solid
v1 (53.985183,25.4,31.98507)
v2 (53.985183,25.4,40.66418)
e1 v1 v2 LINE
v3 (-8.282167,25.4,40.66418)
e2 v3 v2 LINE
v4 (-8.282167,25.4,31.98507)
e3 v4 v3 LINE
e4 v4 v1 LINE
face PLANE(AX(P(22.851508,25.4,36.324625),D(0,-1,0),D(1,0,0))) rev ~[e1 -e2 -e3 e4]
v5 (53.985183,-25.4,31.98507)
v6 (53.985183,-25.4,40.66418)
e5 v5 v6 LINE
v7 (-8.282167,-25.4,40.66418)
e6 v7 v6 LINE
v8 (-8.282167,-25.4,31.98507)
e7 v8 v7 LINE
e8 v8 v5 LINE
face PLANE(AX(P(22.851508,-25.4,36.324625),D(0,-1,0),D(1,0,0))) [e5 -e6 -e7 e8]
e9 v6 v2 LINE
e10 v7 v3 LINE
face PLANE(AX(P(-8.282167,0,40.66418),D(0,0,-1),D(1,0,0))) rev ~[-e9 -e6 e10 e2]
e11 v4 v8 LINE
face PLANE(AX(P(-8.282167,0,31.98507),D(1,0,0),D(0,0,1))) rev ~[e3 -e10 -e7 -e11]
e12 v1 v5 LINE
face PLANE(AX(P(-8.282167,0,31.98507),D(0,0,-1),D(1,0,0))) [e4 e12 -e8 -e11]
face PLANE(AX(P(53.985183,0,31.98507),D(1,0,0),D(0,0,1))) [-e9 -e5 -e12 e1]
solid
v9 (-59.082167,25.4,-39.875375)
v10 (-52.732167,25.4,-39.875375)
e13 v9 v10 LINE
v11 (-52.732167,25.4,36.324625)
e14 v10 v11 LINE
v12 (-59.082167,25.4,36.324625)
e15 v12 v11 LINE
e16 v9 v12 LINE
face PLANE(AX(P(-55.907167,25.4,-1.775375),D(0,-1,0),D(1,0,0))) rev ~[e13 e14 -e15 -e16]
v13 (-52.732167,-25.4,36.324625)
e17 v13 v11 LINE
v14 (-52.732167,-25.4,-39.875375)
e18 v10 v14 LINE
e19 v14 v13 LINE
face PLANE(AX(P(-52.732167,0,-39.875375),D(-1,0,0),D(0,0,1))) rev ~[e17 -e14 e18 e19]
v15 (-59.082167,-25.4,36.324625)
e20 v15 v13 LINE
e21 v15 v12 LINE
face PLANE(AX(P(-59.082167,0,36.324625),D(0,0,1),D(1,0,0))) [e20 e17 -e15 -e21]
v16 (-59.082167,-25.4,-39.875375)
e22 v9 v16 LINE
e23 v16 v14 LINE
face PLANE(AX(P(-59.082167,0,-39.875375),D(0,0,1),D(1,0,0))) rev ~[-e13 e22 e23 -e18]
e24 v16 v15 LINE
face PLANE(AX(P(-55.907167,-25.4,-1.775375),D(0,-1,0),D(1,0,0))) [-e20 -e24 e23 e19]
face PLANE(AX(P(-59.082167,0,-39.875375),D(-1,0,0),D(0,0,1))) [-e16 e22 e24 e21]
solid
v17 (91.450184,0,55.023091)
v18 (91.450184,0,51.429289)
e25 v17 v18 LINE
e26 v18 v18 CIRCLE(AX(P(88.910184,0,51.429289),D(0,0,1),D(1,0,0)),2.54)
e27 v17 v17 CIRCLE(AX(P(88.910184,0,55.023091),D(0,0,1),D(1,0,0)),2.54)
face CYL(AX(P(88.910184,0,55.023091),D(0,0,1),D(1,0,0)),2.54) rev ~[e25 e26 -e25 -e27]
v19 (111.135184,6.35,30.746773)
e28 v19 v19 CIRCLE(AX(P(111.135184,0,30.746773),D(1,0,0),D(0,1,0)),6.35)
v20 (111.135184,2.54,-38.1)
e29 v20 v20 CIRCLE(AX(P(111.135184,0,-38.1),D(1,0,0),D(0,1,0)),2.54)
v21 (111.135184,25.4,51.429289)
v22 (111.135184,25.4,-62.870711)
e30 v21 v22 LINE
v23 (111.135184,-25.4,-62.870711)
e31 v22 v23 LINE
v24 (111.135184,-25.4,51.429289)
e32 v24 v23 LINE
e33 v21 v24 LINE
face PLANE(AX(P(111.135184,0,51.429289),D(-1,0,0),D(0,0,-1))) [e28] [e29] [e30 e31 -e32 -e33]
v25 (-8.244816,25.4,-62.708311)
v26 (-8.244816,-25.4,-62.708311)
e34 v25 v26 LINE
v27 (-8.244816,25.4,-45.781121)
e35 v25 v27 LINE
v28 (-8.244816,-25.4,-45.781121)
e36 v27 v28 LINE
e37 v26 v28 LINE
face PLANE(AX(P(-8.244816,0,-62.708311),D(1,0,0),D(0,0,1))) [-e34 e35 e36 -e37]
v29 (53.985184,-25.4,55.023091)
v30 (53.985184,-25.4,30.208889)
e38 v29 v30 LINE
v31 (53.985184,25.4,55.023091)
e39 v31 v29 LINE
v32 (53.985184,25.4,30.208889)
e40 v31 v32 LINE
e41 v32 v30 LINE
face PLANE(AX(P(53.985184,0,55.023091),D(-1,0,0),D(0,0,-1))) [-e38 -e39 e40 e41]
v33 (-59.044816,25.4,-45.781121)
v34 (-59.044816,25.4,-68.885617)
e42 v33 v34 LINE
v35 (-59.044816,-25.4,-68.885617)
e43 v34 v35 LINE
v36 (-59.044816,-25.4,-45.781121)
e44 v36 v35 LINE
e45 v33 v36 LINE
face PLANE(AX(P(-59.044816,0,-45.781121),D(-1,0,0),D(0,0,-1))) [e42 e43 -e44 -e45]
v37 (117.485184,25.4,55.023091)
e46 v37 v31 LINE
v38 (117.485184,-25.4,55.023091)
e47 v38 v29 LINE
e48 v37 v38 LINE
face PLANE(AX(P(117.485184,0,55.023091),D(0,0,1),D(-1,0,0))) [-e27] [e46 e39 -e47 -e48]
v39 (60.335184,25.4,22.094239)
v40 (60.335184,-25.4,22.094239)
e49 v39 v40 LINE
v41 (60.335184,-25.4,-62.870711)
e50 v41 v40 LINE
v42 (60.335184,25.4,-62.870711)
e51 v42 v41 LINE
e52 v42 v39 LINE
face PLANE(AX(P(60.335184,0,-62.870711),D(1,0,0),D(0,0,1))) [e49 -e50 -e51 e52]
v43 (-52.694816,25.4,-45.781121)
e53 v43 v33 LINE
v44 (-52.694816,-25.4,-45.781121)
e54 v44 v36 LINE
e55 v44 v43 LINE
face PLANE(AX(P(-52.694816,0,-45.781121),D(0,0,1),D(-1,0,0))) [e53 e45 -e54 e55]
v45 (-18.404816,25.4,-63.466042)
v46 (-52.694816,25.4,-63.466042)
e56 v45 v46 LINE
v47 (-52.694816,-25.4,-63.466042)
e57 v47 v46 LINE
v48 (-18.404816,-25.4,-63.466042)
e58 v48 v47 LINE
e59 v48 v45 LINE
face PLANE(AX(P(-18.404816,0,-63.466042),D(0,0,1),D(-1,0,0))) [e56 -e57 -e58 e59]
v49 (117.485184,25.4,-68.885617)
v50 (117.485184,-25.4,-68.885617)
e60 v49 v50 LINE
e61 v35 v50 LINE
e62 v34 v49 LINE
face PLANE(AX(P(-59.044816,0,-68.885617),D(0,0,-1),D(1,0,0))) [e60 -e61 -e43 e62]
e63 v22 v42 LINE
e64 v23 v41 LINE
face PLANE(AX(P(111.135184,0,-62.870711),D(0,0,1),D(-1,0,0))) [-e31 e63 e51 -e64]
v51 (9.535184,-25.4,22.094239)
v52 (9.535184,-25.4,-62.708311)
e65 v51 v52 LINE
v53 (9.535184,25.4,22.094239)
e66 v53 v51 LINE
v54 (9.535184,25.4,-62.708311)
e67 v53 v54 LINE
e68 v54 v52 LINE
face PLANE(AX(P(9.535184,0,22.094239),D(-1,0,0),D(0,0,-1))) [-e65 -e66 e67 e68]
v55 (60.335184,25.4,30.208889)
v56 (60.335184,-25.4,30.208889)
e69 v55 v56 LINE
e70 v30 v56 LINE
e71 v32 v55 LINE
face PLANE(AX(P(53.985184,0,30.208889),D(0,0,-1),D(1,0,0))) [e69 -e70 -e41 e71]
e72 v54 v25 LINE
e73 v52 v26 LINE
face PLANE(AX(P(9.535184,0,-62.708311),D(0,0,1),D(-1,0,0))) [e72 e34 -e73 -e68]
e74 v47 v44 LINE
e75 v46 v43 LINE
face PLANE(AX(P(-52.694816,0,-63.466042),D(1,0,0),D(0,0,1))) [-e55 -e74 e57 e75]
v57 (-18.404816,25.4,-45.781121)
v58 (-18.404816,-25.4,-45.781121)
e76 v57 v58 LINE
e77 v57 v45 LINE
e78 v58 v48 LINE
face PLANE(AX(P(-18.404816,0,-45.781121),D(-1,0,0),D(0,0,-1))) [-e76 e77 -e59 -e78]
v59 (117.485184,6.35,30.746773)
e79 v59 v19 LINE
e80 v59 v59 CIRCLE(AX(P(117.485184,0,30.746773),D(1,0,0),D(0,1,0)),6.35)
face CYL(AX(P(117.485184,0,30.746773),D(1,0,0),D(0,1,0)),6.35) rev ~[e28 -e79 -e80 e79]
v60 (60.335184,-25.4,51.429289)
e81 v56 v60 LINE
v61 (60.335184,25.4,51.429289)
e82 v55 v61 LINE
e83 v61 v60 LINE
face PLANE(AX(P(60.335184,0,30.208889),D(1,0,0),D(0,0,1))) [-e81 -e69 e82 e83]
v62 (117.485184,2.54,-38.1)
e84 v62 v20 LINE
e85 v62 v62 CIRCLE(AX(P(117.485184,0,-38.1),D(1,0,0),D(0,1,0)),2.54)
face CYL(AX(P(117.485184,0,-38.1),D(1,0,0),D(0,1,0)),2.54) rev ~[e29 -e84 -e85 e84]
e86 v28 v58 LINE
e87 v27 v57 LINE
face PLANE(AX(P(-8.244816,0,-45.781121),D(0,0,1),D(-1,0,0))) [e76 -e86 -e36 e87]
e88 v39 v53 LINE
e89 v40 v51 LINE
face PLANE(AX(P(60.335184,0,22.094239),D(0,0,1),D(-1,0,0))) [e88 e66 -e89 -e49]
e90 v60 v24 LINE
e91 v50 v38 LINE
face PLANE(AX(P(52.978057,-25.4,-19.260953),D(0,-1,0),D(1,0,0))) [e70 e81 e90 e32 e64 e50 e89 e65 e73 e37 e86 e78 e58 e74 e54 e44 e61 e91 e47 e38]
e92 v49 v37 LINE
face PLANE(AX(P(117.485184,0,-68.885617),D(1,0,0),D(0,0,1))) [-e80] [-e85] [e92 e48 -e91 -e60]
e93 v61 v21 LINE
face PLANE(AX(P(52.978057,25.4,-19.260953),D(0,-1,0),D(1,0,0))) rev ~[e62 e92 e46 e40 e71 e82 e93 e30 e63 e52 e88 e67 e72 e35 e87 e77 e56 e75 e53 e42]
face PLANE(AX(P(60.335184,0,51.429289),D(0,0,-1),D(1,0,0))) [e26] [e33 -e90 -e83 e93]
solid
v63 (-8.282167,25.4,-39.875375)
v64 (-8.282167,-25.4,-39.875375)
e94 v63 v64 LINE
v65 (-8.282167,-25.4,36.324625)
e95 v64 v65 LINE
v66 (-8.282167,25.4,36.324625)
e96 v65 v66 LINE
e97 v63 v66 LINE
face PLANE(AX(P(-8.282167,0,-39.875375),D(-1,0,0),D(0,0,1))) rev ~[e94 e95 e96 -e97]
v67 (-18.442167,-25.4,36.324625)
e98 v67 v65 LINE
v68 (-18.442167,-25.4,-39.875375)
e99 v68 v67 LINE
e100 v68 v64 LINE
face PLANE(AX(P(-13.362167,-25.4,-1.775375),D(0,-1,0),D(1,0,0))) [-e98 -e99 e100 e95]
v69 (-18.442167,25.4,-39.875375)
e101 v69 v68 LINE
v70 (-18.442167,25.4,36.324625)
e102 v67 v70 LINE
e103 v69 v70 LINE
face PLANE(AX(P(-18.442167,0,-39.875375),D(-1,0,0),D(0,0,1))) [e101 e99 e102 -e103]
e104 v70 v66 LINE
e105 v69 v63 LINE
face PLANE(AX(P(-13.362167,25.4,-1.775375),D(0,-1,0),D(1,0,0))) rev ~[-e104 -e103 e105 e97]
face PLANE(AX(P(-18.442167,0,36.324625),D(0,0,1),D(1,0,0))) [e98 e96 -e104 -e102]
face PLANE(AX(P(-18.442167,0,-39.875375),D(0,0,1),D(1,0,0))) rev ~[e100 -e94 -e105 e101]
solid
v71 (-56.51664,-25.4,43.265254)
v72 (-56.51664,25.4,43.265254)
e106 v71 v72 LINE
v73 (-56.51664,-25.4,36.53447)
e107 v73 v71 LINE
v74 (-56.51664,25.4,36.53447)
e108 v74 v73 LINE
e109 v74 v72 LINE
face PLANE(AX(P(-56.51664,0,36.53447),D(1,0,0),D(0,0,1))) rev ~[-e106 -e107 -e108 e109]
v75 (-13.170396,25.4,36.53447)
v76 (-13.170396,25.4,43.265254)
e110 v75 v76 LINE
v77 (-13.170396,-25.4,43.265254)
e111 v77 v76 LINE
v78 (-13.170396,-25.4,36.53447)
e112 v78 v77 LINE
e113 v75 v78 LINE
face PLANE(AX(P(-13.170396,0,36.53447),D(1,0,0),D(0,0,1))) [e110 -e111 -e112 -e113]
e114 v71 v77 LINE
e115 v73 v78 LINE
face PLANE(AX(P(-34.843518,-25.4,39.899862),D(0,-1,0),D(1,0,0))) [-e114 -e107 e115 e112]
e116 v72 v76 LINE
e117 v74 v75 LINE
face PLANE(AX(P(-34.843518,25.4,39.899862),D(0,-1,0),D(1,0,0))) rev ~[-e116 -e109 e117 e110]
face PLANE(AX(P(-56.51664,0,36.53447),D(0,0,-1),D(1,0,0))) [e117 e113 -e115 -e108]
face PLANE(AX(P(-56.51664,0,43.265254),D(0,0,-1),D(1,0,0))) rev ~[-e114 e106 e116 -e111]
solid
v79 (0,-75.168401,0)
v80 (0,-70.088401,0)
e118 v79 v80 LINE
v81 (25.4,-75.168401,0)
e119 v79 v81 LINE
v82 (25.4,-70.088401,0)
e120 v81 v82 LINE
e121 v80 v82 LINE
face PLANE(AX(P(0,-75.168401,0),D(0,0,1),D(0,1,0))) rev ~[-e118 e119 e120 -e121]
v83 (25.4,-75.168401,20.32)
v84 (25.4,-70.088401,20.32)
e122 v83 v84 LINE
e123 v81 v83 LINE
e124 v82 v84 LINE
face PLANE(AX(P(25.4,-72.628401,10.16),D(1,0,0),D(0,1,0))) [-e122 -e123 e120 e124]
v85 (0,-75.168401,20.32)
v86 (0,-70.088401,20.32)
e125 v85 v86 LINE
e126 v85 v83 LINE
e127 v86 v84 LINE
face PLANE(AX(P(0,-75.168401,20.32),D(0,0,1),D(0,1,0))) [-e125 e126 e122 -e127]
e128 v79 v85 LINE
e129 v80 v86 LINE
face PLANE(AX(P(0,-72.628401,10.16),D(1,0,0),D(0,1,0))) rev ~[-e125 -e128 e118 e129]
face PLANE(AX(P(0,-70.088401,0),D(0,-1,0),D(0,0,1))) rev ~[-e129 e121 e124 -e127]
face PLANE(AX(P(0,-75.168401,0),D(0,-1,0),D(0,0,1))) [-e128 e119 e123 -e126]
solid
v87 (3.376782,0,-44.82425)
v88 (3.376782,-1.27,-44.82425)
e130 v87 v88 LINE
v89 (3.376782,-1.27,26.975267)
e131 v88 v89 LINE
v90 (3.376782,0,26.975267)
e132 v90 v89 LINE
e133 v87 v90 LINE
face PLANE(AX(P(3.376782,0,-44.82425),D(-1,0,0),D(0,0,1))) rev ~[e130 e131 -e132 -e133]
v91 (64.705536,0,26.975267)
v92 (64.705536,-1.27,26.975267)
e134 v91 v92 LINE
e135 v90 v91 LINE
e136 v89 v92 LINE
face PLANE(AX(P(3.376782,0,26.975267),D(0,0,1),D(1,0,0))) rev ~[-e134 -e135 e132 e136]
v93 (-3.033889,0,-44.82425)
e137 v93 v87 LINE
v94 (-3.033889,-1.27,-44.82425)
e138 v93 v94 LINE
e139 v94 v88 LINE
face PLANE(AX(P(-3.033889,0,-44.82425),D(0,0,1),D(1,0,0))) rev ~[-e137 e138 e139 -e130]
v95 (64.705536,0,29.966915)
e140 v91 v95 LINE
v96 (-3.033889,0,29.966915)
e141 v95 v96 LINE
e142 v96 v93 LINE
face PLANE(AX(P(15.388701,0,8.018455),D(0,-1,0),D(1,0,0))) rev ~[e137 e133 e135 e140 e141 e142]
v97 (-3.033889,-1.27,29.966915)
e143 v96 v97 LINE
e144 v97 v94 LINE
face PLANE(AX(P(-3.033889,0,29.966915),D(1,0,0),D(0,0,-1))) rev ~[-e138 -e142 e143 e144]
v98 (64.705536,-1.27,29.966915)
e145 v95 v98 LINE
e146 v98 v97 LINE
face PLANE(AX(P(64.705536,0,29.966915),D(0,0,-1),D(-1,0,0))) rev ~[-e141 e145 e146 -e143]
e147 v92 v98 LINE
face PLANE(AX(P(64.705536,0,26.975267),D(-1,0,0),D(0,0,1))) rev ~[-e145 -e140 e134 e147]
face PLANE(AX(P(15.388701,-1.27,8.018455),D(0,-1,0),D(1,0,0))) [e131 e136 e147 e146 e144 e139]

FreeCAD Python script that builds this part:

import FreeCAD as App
import Part
import Sketcher

V = App.Vector
Q = App.Units.Quantity


def add_polygon(sketch, points):
    """Adds a closed chain of lines whose ends are joined by coincident constraints."""
    first, n = sketch.GeometryCount, len(points)
    for a, b in zip(points, points[1:] + points[:1]):
        sketch.addGeometry(Part.LineSegment(App.Vector(*a, 0), App.Vector(*b, 0)), False)
    for i in range(n):
        sketch.addConstraint(Sketcher.Constraint("Coincident", first + i, 2, first + (i + 1) % n, 1))

doc = App.newDocument("Part")
body = doc.addObject("PartDesign::Body", "Body")
body.AllowCompound = True

# Sketch on XZ plane
sketch1 = doc.addObject("Sketcher::SketchObject", "Sketch")
body.addObject(sketch1)
sketch1.AttachmentSupport = (doc.XZ_Plane, [""])
sketch1.MapMode = "FlatFace"
add_polygon(sketch1, [(-59.082167, 36.324625), (-59.082167, -39.875375), (-52.732167, -39.875375), (-52.732167, 36.324625)])  # lines 0-3
add_polygon(sketch1, [(-18.442167, 36.324625), (-18.442167, -39.875375), (-8.282167, -39.875375), (-8.282167, 36.324625)])  # lines 4-7
add_polygon(sketch1, [(-52.694816, -45.781121), (-59.044816, -45.781121), (-59.044816, -68.885617), (117.485184, -68.885617), (117.485184, 55.023091), (53.985184, 55.023091), (53.985184, 30.208889), (60.335184, 30.208889), (60.335184, 51.429289), (111.135184, 51.429289), (111.135184, -62.870711), (60.335184, -62.870711), (60.335184, 22.094239), (9.535184, 22.094239), (9.535184, -62.708311), (-8.244816, -62.708311), (-8.244816, -45.781121), (-18.404816, -45.781121), (-18.404816, -63.466042), (-52.694816, -63.466042)])  # lines 8-27
sketch1.addConstraint(Sketcher.Constraint("Vertical", 0))
sketch1.addConstraint(Sketcher.Constraint("Horizontal", 1))
sketch1.addConstraint(Sketcher.Constraint("Vertical", 2))
sketch1.addConstraint(Sketcher.Constraint("Horizontal", 3))
sketch1.addConstraint(Sketcher.Constraint("Vertical", 4))
sketch1.addConstraint(Sketcher.Constraint("Horizontal", 5))
sketch1.addConstraint(Sketcher.Constraint("Vertical", 6))
sketch1.addConstraint(Sketcher.Constraint("Horizontal", 7))
sketch1.addConstraint(Sketcher.Constraint("Horizontal", 8))
sketch1.addConstraint(Sketcher.Constraint("Vertical", 9))
sketch1.addConstraint(Sketcher.Constraint("Horizontal", 10))
sketch1.addConstraint(Sketcher.Constraint("Vertical", 11))
sketch1.addConstraint(Sketcher.Constraint("Horizontal", 12))
sketch1.addConstraint(Sketcher.Constraint("Vertical", 13))
sketch1.addConstraint(Sketcher.Constraint("Horizontal", 14))
sketch1.addConstraint(Sketcher.Constraint("Vertical", 15))
sketch1.addConstraint(Sketcher.Constraint("Horizontal", 16))
sketch1.addConstraint(Sketcher.Constraint("Vertical", 17))
sketch1.addConstraint(Sketcher.Constraint("Horizontal", 18))
sketch1.addConstraint(Sketcher.Constraint("Vertical", 19))
sketch1.addConstraint(Sketcher.Constraint("Horizontal", 20))
sketch1.addConstraint(Sketcher.Constraint("Vertical", 21))
sketch1.addConstraint(Sketcher.Constraint("Horizontal", 22))
sketch1.addConstraint(Sketcher.Constraint("Vertical", 23))
sketch1.addConstraint(Sketcher.Constraint("Horizontal", 24))
sketch1.addConstraint(Sketcher.Constraint("Vertical", 25))
sketch1.addConstraint(Sketcher.Constraint("Horizontal", 26))
sketch1.addConstraint(Sketcher.Constraint("Vertical", 27))
sketch1.addConstraint(Sketcher.Constraint("Horizontal", 1, 2, 4, 2))
sketch1.addConstraint(Sketcher.Constraint("Horizontal", 3, 2, 6, 2))
sketch1.addConstraint(Sketcher.Constraint("Horizontal", 8, 2, 23, 2))
sketch1.addConstraint(Sketcher.Constraint("Vertical", 15, 2, 18, 2))
sketch1.addConstraint(Sketcher.Constraint("Equal", 3, 8))
sketch1.addConstraint(Sketcher.Constraint("Equal", 8, 14))
sketch1.addConstraint(Sketcher.Constraint("Equal", 18, 20))
sketch1.addConstraint(Sketcher.Constraint("Equal", 7, 24))
sketch1.addConstraint(Sketcher.Constraint("DistanceX", 16, 1, 16, 2, Q("2 in")))
sketch1.addConstraint(Sketcher.Constraint("DistanceY", 0, 2, 0, 1, Q("3 in")))
sketch1.addConstraint(Sketcher.Constraint("DistanceX", 5, 1, 5, 2, Q("0.4 in")))
sketch1.addConstraint(Sketcher.Constraint("DistanceX", 12, 2, 12, 1, Q("2.5 in")))
sketch1.addConstraint(Sketcher.Constraint("DistanceX", 22, 2, 22, 1, Q("0.7 in")))
sketch1.addConstraint(Sketcher.Constraint("DistanceY", 17, 2, 17, 1, Q("4.5 in")))
sketch1.addConstraint(Sketcher.Constraint("DistanceX", 0, 2, 5, 2, Q("2 in")))
sketch1.addConstraint(Sketcher.Constraint("DistanceX", 9, 2, 22, 2, Q("2 in")))
sketch1.addConstraint(Sketcher.Constraint("DistanceX", 1, 1, 1, 2, Q("0.25 in")))
sketch1.addConstraint(Sketcher.Constraint("DistanceY", 15, 1, 15, 2, Q("21.2204 mm")))
sketch1.addConstraint(Sketcher.Constraint("DistanceY", 19, 1, 19, 2, Q("84.96495 mm")))
sketch1.addConstraint(Sketcher.Constraint("DistanceY", 21, 2, 21, 1, Q("84.80255 mm")))
sketch1.addConstraint(Sketcher.Constraint("DistanceY", 23, 1, 23, 2, Q("16.92719 mm")))
sketch1.addConstraint(Sketcher.Constraint("DistanceY", 25, 2, 25, 1, Q("17.684921 mm")))
sketch1.addConstraint(Sketcher.Constraint("DistanceY", 17, 2, 11, 2, Q("117.893802 mm")))
sketch1.addConstraint(Sketcher.Constraint("DistanceY", 9, 2, 9, 1, Q("23.104496 mm")))
sketch1.addConstraint(Sketcher.Constraint("DistanceY", 8, 2, -1, 1, Q("45.781121 mm")))
sketch1.addConstraint(Sketcher.Constraint("DistanceX", 0, 2, 8, 2, Q("0.037351 mm")))
sketch1.addConstraint(Sketcher.Constraint("DistanceY", 9, 2, 0, 2, Q("29.010242 mm")))
sketch1.addConstraint(Sketcher.Constraint("DistanceX", 0, 2, -1, 1, Q("59.082167 mm")))
pad1 = doc.addObject("PartDesign::Pad", "Pad")
body.addObject(pad1)
pad1.Profile = sketch1
pad1.Length = Q("2 in")
pad1.Midplane = True

# Sketch on YZ plane
sketch2 = doc.addObject("Sketcher::SketchObject", "Sketch001")
body.addObject(sketch2)
sketch2.AttachmentSupport = (doc.YZ_Plane, [""])
sketch2.MapMode = "FlatFace"
sketch2.AttachmentOffset = App.Placement(V(0, 0, 117.485184), App.Rotation())
sketch2.addGeometry(Part.Circle(V(0, 30.746773, 0), V(0, 0, 1), 6.35), False)
sketch2.addConstraint(Sketcher.Constraint("PointOnObject", 0, 3, -2))
sketch2.addConstraint(Sketcher.Constraint("Diameter", 0, Q("0.5 in")))
sketch2.addConstraint(Sketcher.Constraint("DistanceY", -1, 1, 0, 3, Q("30.746773 mm")))
pocket1 = doc.addObject("PartDesign::Pocket", "Pocket")
body.addObject(pocket1)
pocket1.Profile = sketch2
pocket1.Length = Q("0.25 in")

# Sketch on YZ plane
sketch3 = doc.addObject("Sketcher::SketchObject", "Sketch002")
body.addObject(sketch3)
sketch3.AttachmentSupport = (doc.YZ_Plane, [""])
sketch3.MapMode = "FlatFace"
sketch3.AttachmentOffset = App.Placement(V(0, 0, 117.485184), App.Rotation())
sketch3.addGeometry(Part.Circle(V(0, -38.1, 0), V(0, 0, 1), 2.54), False)
sketch3.addConstraint(Sketcher.Constraint("PointOnObject", 0, 3, -2))
sketch3.addConstraint(Sketcher.Constraint("Diameter", 0, Q("0.2 in")))
sketch3.addConstraint(Sketcher.Constraint("DistanceY", 0, 3, -1, 1, Q("1.5 in")))
pocket2 = doc.addObject("PartDesign::Pocket", "Pocket001")
body.addObject(pocket2)
pocket2.Profile = sketch3
pocket2.Length = Q("0.25 in")

# Sketch on XY plane
sketch4 = doc.addObject("Sketcher::SketchObject", "Sketch003")
body.addObject(sketch4)
sketch4.AttachmentSupport = (doc.XY_Plane, [""])
sketch4.MapMode = "FlatFace"
sketch4.AttachmentOffset = App.Placement(V(0, 0, 55.023091), App.Rotation())
sketch4.addGeometry(Part.Circle(V(88.910184, 0, 0), V(0, 0, 1), 2.54), False)
sketch4.addConstraint(Sketcher.Constraint("PointOnObject", 0, 3, -1))
sketch4.addConstraint(Sketcher.Constraint("Diameter", 0, Q("0.2 in")))
sketch4.addConstraint(Sketcher.Constraint("DistanceX", -1, 1, 0, 3, Q("88.910184 mm")))
pocket3 = doc.addObject("PartDesign::Pocket", "Pocket002")
body.addObject(pocket3)
pocket3.Profile = sketch4
pocket3.Length = 3.8128
body2 = doc.addObject("PartDesign::Body", "Body001")

# Sketch on XZ plane
sketch5 = doc.addObject("Sketcher::SketchObject", "Sketch004")
body2.addObject(sketch5)
sketch5.AttachmentSupport = (doc.getObject("XZ_Plane001"), [""])
sketch5.MapMode = "FlatFace"
add_polygon(sketch5, [(-8.282167, 40.66418), (-8.282167, 31.98507), (53.985183, 31.98507), (53.985183, 40.66418)])  # lines 0-3
sketch5.addConstraint(Sketcher.Constraint("Vertical", 0))
sketch5.addConstraint(Sketcher.Constraint("Horizontal", 1))
sketch5.addConstraint(Sketcher.Constraint("Vertical", 2))
sketch5.addConstraint(Sketcher.Constraint("Horizontal", 3))
sketch5.addConstraint(Sketcher.Constraint("DistanceX", 1, 1, 1, 2, Q("62.267351 mm")))
sketch5.addConstraint(Sketcher.Constraint("DistanceY", 0, 2, 0, 1, Q("8.679109 mm")))
sketch5.addConstraint(Sketcher.Constraint("DistanceY", -1, 1, 0, 2, Q("31.98507 mm")))
sketch5.addConstraint(Sketcher.Constraint("DistanceX", 0, 2, -1, 1, Q("8.282167 mm")))
pad2 = doc.addObject("PartDesign::Pad", "Pad001")
body2.addObject(pad2)
pad2.Profile = sketch5
pad2.Length = Q("2 in")
pad2.Midplane = True
body3 = doc.addObject("PartDesign::Body", "Body002")

# Sketch on XZ plane
sketch6 = doc.addObject("Sketcher::SketchObject", "Sketch005")
body3.addObject(sketch6)
sketch6.AttachmentSupport = (doc.getObject("XZ_Plane002"), [""])
sketch6.MapMode = "FlatFace"
add_polygon(sketch6, [(-56.51664, 43.265254), (-56.51664, 36.53447), (-13.170396, 36.53447), (-13.170396, 43.265254)])  # lines 0-3
sketch6.addConstraint(Sketcher.Constraint("Vertical", 0))
sketch6.addConstraint(Sketcher.Constraint("Horizontal", 1))
sketch6.addConstraint(Sketcher.Constraint("Vertical", 2))
sketch6.addConstraint(Sketcher.Constraint("Horizontal", 3))
sketch6.addConstraint(Sketcher.Constraint("DistanceX", 1, 1, 1, 2, Q("43.346244 mm")))
sketch6.addConstraint(Sketcher.Constraint("DistanceY", 0, 2, 0, 1, Q("6.730783 mm")))
sketch6.addConstraint(Sketcher.Constraint("DistanceX", 0, 2, -1, 1, Q("56.51664 mm")))
sketch6.addConstraint(Sketcher.Constraint("DistanceY", -1, 1, 0, 2, Q("36.53447 mm")))
pad3 = doc.addObject("PartDesign::Pad", "Pad002")
body3.addObject(pad3)
pad3.Profile = sketch6
pad3.Length = Q("2 in")
pad3.Midplane = True
body4 = doc.addObject("PartDesign::Body", "Body003")

# Sketch on YZ plane
sketch7 = doc.addObject("Sketcher::SketchObject", "Sketch006")
body4.addObject(sketch7)
sketch7.AttachmentSupport = (doc.getObject("YZ_Plane003"), [""])
sketch7.MapMode = "FlatFace"
add_polygon(sketch7, [(-75.168401, 20.32), (-75.168401, 0), (-70.088401, 0), (-70.088401, 20.32)])  # lines 0-3
sketch7.addConstraint(Sketcher.Constraint("Vertical", 0))
sketch7.addConstraint(Sketcher.Constraint("Horizontal", 1))
sketch7.addConstraint(Sketcher.Constraint("Vertical", 2))
sketch7.addConstraint(Sketcher.Constraint("Horizontal", 3))
sketch7.addConstraint(Sketcher.Constraint("PointOnObject", 0, 2, -1))
sketch7.addConstraint(Sketcher.Constraint("DistanceX", 1, 1, 1, 2, Q("0.2 in")))
sketch7.addConstraint(Sketcher.Constraint("DistanceY", 0, 2, 0, 1, Q("0.8 in")))
sketch7.addConstraint(Sketcher.Constraint("DistanceX", 0, 2, -1, 1, Q("75.168401 mm")))
pad4 = doc.addObject("PartDesign::Pad", "Pad003")
body4.addObject(pad4)
pad4.Profile = sketch7
pad4.Length = Q("1 in")
body5 = doc.addObject("PartDesign::Body", "Body004")

# Sketch on XZ plane
sketch8 = doc.addObject("Sketcher::SketchObject", "Sketch007")
body5.addObject(sketch8)
sketch8.AttachmentSupport = (doc.getObject("XZ_Plane004"), [""])
sketch8.MapMode = "FlatFace"
add_polygon(sketch8, [(-3.033889, -44.82425), (3.376782, -44.82425), (3.376782, 26.975267), (64.705536, 26.975267), (64.705536, 29.966915), (-3.033889, 29.966915)])  # lines 0-5
sketch8.addConstraint(Sketcher.Constraint("Horizontal", 0))
sketch8.addConstraint(Sketcher.Constraint("Vertical", 1))
sketch8.addConstraint(Sketcher.Constraint("Horizontal", 2))
sketch8.addConstraint(Sketcher.Constraint("Vertical", 3))
sketch8.addConstraint(Sketcher.Constraint("Horizontal", 4))
sketch8.addConstraint(Sketcher.Constraint("Vertical", 5))
sketch8.addConstraint(Sketcher.Constraint("DistanceY", -1, 1, 3, 2, Q("1.1797998 in")))
sketch8.addConstraint(Sketcher.Constraint("DistanceX", 0, 1, 0, 2, Q("6.410671 mm")))
sketch8.addConstraint(Sketcher.Constraint("DistanceY", 3, 1, 3, 2, Q("2.991648 mm")))
sketch8.addConstraint(Sketcher.Constraint("DistanceX", 2, 1, 2, 2, Q("61.328754 mm")))
sketch8.addConstraint(Sketcher.Constraint("DistanceY", 1, 1, 1, 2, Q("71.799517 mm")))
sketch8.addConstraint(Sketcher.Constraint("DistanceX", -1, 1, 0, 2, Q("3.376782 mm")))
pad5 = doc.addObject("PartDesign::Pad", "Pad004")
body5.addObject(pad5)
pad5.Profile = sketch8
pad5.Length = Q("0.05 in")

doc.recompute()
